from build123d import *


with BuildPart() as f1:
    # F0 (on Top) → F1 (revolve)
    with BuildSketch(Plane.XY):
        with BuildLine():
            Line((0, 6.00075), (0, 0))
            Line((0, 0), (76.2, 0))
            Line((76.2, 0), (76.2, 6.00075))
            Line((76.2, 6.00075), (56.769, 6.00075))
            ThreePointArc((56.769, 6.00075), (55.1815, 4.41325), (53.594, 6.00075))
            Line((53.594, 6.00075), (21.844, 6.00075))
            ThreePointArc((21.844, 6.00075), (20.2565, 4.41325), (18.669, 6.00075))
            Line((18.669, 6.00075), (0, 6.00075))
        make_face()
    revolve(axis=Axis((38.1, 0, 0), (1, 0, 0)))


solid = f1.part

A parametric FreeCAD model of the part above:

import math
import FreeCAD as App
import Part
import Sketcher

V = App.Vector
Q = App.Units.Quantity

doc = App.newDocument("Part")
body = doc.addObject("PartDesign::Body", "Body")

sketch1 = body.newObject("Sketcher::SketchObject", "Sketch")
sketch1.AttachmentSupport = (doc.getObject("XY_Plane"), [""])
sketch1.MapMode = "FlatFace"
sketch1.addGeometry([
    Part.LineSegment(V(0, 6, 0), V(0, 0, 0)),
    Part.LineSegment(V(0, 0, 0), V(76.2, 0, 0)),
    Part.LineSegment(V(76.2, 0, 0), V(76.2, 6, 0)),
    Part.LineSegment(V(76.2, 6, 0), V(56.8, 6, 0)),
    Part.ArcOfCircle(Part.Circle(V(55.2, 6, 0), V(0, 0, 1), 1.6), math.radians(180), math.radians(360)),
    Part.LineSegment(V(53.6, 6, 0), V(21.8, 6, 0)),
    Part.ArcOfCircle(Part.Circle(V(20.3, 6, 0), V(0, 0, 1), 1.6), math.radians(180), math.radians(360)),
    Part.LineSegment(V(18.7, 6, 0), V(0, 6, 0)),
], False)
sketch1.addConstraint([
    Sketcher.Constraint("Coincident", 0, 2, 1, 1),
    Sketcher.Constraint("Coincident", 1, 2, 2, 1),
    Sketcher.Constraint("Coincident", 2, 2, 3, 1),
    Sketcher.Constraint("Coincident", 3, 2, 4, 2),
    Sketcher.Constraint("Coincident", 4, 1, 5, 1),
    Sketcher.Constraint("Coincident", 5, 2, 6, 2),
    Sketcher.Constraint("Coincident", 6, 1, 7, 1),
    Sketcher.Constraint("Coincident", 7, 2, 0, 1),
    Sketcher.Constraint("Vertical", 0),
    Sketcher.Constraint("Horizontal", 1),
    Sketcher.Constraint("Vertical", 2),
    Sketcher.Constraint("Horizontal", 3),
    Sketcher.Constraint("Horizontal", 5),
    Sketcher.Constraint("Horizontal", 7),
    Sketcher.Constraint("Coincident", 0, 2, -1, 1),
    Sketcher.Constraint("Equal", 4, 6),
    Sketcher.Constraint("Horizontal", 4, 3, 6, 3),
    Sketcher.Constraint("Horizontal", 6, 3, 2, 2),
    Sketcher.Constraint("Horizontal", 3, 2, 4, 1),
    Sketcher.Constraint("Horizontal", 5, 2, 6, 1),
    Sketcher.Constraint("DistanceX", 1, 1, 1, 2, Q("3 in")),
    Sketcher.Constraint("Radius", 4, Q("0.0625 in")),
    Sketcher.Constraint("DistanceX", 5, 2, 5, 1, Q("1.25 in")),
    Sketcher.Constraint("DistanceX", 3, 2, 3, 1, Q("0.765 in")),
    Sketcher.Constraint("DistanceY", 0, 2, 0, 1, Q("6.00075 mm")),
])
revolution = body.newObject("PartDesign::Revolution", "Revolution")
revolution.Profile = sketch1
revolution.ReferenceAxis = (sketch1, ["H_Axis"])
revolution.Angle = 360

doc.recompute()
